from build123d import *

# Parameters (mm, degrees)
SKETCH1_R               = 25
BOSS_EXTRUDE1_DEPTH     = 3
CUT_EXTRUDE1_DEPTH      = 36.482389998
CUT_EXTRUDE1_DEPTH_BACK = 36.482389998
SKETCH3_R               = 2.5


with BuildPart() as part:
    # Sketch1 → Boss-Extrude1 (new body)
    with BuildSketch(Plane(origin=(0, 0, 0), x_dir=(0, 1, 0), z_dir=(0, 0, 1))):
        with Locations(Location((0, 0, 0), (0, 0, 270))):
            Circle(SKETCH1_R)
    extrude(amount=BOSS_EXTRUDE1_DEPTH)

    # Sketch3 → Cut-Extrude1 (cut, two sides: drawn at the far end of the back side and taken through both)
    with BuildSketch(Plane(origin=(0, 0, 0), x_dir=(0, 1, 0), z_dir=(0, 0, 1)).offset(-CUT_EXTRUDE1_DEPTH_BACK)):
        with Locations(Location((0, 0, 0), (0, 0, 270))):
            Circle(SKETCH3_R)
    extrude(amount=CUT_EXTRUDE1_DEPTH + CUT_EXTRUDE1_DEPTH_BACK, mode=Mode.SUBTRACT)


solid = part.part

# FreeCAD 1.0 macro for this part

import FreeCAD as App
import Part
import Sketcher
from FreeCAD import Vector
Q = App.Units.Quantity

doc = App.newDocument("Part")
body = doc.addObject("PartDesign::Body", "Body")

sketch1 = body.newObject("Sketcher::SketchObject", "Sketch")
sketch1.AttachmentSupport = (doc.getObject("XY_Plane"), [""])
sketch1.MapMode = "FlatFace"
sketch1.addGeometry(Part.Circle(Vector(0, 0, 0), Vector(0, 0, 1), 25), False)
sketch1.addConstraint(Sketcher.Constraint("Coincident", 0, 3, -1, 1))
sketch1.addConstraint(Sketcher.Constraint("Diameter", 0, Q("50 mm")))
pad1 = body.newObject("PartDesign::Pad", "Pad")
pad1.Profile = sketch1
pad1.Length = 3

sketch2 = body.newObject("Sketcher::SketchObject", "Sketch001")
sketch2.AttachmentSupport = (doc.getObject("XY_Plane"), [""])
sketch2.MapMode = "FlatFace"
sketch2.addGeometry(Part.Circle(Vector(0, 0, 0), Vector(0, 0, 1), 2.5), False)
sketch2.addConstraint(Sketcher.Constraint("Coincident", 0, 3, -1, 1))
sketch2.addConstraint(Sketcher.Constraint("Diameter", 0, Q("5 mm")))
pocket1 = body.newObject("PartDesign::Pocket", "Pocket")
pocket1.Profile = sketch2
pocket1.Type = "ThroughAll"
pocket1.Midplane = True

doc.recompute()
